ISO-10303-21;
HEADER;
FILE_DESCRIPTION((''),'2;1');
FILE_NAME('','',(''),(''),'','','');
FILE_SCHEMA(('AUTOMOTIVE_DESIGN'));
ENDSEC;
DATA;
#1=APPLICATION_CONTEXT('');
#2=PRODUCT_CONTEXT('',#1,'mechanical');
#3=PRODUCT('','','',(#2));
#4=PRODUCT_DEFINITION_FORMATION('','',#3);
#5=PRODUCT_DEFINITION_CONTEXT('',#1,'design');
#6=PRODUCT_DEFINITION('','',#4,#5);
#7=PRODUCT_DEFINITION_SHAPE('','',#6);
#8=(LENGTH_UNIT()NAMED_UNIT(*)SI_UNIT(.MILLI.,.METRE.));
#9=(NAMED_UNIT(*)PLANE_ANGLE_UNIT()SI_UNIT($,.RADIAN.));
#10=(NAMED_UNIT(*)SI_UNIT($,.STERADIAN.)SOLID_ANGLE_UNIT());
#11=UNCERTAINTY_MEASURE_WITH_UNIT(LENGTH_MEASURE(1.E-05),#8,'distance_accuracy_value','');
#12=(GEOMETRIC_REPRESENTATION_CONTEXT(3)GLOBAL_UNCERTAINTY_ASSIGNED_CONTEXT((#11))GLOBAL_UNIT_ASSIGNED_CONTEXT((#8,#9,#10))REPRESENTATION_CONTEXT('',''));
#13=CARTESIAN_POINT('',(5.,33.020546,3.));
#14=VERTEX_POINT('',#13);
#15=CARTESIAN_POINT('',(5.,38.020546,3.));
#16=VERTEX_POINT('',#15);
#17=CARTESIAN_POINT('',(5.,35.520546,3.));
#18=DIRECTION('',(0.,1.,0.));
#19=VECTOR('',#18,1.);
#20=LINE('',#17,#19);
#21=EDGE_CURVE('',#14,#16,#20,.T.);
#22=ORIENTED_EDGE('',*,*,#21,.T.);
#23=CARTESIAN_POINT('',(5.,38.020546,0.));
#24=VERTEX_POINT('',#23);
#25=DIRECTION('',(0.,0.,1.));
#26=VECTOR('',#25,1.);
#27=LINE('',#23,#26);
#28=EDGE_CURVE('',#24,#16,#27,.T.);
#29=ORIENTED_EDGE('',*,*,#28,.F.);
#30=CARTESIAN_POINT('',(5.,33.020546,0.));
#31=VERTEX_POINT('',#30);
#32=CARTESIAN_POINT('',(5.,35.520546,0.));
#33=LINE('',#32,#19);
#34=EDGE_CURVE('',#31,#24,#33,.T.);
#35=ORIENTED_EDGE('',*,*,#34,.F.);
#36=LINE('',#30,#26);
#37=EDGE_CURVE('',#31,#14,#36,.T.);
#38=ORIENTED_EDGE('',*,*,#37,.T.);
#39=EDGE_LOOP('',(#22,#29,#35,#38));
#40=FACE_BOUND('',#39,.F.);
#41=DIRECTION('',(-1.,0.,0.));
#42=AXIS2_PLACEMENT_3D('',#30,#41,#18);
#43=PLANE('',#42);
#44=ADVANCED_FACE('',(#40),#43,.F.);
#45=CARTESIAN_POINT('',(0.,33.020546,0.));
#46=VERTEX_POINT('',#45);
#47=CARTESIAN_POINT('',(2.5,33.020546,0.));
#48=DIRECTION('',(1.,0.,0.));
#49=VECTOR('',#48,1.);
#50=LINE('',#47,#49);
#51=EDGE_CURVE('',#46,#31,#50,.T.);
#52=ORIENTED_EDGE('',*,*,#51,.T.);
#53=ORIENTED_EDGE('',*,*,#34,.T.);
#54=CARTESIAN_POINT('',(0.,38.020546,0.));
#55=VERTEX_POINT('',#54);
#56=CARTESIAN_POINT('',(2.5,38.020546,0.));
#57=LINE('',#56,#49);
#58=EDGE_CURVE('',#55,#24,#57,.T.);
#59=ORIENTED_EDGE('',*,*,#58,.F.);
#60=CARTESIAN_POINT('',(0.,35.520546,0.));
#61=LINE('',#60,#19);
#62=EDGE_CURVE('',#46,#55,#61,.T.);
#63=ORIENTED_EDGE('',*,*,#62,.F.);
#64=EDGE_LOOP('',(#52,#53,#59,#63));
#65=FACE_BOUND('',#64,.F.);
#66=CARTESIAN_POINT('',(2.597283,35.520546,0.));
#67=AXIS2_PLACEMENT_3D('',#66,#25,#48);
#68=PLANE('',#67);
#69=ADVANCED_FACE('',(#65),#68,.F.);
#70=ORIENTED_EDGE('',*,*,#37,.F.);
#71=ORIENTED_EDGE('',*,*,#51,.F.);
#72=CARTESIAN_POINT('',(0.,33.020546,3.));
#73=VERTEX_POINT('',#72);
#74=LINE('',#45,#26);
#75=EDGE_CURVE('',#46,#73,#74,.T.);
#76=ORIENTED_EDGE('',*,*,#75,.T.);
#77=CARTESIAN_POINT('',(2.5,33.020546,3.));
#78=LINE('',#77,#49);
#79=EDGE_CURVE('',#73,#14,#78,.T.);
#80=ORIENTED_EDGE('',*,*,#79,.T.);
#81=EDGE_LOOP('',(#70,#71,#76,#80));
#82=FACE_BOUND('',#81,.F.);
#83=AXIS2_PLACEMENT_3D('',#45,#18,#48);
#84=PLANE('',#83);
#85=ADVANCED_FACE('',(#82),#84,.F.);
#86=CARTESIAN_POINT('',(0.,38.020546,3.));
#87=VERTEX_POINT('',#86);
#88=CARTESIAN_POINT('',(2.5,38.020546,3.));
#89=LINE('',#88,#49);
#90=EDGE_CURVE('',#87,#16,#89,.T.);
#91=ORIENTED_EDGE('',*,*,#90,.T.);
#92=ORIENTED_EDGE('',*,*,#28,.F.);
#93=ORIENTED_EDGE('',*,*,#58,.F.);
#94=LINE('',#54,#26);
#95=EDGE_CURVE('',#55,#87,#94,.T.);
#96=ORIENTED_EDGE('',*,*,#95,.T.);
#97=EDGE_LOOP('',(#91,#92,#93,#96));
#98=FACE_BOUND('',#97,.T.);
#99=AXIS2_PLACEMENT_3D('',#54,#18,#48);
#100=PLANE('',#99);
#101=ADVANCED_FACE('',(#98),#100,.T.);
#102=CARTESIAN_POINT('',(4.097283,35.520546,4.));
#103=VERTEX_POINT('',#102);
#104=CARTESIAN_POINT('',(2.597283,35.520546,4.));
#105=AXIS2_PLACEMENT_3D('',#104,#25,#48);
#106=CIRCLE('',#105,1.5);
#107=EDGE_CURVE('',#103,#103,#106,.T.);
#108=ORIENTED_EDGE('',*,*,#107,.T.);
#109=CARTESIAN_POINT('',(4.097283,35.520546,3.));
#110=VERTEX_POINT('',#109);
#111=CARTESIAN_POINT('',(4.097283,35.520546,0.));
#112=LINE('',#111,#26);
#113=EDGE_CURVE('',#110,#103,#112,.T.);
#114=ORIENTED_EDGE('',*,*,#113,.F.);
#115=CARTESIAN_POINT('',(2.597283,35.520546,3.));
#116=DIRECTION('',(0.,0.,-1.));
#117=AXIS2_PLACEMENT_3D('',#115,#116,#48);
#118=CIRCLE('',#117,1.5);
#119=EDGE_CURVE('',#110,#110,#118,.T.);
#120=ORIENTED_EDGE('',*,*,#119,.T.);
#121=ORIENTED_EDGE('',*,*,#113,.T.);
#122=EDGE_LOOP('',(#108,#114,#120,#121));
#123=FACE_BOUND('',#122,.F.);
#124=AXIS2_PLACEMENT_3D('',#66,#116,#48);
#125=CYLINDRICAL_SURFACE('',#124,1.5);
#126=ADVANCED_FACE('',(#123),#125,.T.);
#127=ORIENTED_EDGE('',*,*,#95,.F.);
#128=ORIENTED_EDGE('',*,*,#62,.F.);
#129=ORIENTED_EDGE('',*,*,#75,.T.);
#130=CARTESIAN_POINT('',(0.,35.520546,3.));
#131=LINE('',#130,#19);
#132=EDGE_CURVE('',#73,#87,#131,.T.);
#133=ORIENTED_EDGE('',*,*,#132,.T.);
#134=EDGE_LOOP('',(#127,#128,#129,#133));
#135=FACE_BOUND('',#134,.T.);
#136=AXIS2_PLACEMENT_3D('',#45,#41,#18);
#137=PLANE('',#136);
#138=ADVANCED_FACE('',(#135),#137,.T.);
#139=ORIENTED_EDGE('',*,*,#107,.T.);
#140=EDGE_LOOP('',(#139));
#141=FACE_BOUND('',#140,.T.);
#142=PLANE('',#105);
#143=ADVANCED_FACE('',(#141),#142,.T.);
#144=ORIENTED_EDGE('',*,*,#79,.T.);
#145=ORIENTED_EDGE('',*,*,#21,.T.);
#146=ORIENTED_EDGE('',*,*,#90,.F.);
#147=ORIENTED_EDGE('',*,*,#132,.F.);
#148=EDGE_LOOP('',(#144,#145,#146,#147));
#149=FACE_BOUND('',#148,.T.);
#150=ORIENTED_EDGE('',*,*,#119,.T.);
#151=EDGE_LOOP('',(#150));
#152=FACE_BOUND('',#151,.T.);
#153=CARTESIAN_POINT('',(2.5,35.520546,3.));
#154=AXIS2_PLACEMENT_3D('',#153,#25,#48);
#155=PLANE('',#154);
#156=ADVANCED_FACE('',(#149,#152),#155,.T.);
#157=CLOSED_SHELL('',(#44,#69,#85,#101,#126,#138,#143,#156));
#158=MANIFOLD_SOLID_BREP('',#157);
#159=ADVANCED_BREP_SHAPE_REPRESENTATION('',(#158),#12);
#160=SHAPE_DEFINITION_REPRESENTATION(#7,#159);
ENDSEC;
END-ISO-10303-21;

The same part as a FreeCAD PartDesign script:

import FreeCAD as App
import Part
import Sketcher
from FreeCAD import Vector

doc = App.newDocument("Part")
body = doc.addObject("PartDesign::Body", "Body")

# Sketch on XY plane
sketch1 = body.newObject("Sketcher::SketchObject", "Sketch")
sketch1.AttachmentSupport = (doc.getObject("XY_Plane"), [""])
sketch1.MapMode = "FlatFace"
sketch1.addGeometry(Part.LineSegment(Vector(0, 38, 0), Vector(0, 33, 0)), False)
sketch1.addGeometry(Part.LineSegment(Vector(0, 33, 0), Vector(5, 33, 0)), False)
sketch1.addGeometry(Part.LineSegment(Vector(5, 33, 0), Vector(5, 38, 0)), False)
sketch1.addGeometry(Part.LineSegment(Vector(5, 38, 0), Vector(0, 38, 0)), False)
sketch1.addConstraint(Sketcher.Constraint("Coincident", 0, 2, 1, 1))
sketch1.addConstraint(Sketcher.Constraint("Coincident", 1, 2, 2, 1))
sketch1.addConstraint(Sketcher.Constraint("Coincident", 2, 2, 3, 1))
sketch1.addConstraint(Sketcher.Constraint("Coincident", 3, 2, 0, 1))
sketch1.addConstraint(Sketcher.Constraint("Vertical", 0))
sketch1.addConstraint(Sketcher.Constraint("Horizontal", 1))
sketch1.addConstraint(Sketcher.Constraint("Vertical", 2))
sketch1.addConstraint(Sketcher.Constraint("Horizontal", 3))
sketch1.addConstraint(Sketcher.Constraint("PointOnObject", 0, 2, -2))
sketch1.addConstraint(Sketcher.Constraint("Equal", 3, 0))
sketch1.addConstraint(Sketcher.Constraint("DistanceX", 1, 1, 1, 2, 5.0))
sketch1.addConstraint(Sketcher.Constraint("DistanceY", -1, 1, 0, 2, 33.020546))
pad1 = body.newObject("PartDesign::Pad", "Pad")
pad1.Profile = sketch1
pad1.Length = 3

# Sketch on XY plane
sketch2 = body.newObject("Sketcher::SketchObject", "Sketch001")
sketch2.AttachmentSupport = (doc.getObject("XY_Plane"), [""])
sketch2.MapMode = "FlatFace"
sketch2.addGeometry(Part.Circle(Vector(2.6, 35.5, 0), Vector(0, 0, 1), 1.5), False)
sketch2.addConstraint(Sketcher.Constraint("Diameter", 0, 3.0))
sketch2.addConstraint(Sketcher.Constraint("DistanceX", -1, 1, 0, 3, 2.597283))
sketch2.addConstraint(Sketcher.Constraint("DistanceY", -1, 1, 0, 3, 35.520546))
pad2 = body.newObject("PartDesign::Pad", "Pad001")
pad2.Profile = sketch2
pad2.Length = 4

doc.recompute()
